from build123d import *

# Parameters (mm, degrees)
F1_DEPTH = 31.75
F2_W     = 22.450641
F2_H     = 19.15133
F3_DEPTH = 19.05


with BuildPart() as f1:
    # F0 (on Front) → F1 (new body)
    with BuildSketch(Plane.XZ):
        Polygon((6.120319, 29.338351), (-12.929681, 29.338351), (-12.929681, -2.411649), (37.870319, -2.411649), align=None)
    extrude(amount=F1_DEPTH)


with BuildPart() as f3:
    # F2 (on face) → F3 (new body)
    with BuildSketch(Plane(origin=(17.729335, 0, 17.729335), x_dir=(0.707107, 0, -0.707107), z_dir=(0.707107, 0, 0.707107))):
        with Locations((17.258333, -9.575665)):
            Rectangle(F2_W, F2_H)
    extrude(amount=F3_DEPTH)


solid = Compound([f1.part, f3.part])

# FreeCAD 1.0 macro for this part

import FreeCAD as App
import Part
import Sketcher

V = App.Vector
Q = App.Units.Quantity


def add_polygon(sketch, points):
    """Adds a closed chain of lines whose ends are joined by coincident constraints."""
    first, n = sketch.GeometryCount, len(points)
    for a, b in zip(points, points[1:] + points[:1]):
        sketch.addGeometry(Part.LineSegment(App.Vector(*a, 0), App.Vector(*b, 0)), False)
    for i in range(n):
        sketch.addConstraint(Sketcher.Constraint("Coincident", first + i, 2, first + (i + 1) % n, 1))

doc = App.newDocument("Part")
body = doc.addObject("PartDesign::Body", "Body")

sketch1 = body.newObject("Sketcher::SketchObject", "Sketch")
sketch1.AttachmentSupport = (doc.getObject("XZ_Plane"), [""])
sketch1.MapMode = "FlatFace"
add_polygon(sketch1, [(6.120319, 29.338351), (-12.929681, 29.338351), (-12.929681, -2.411649), (37.870319, -2.411649)])
sketch1.addConstraint([
    Sketcher.Constraint("Horizontal", 0),
    Sketcher.Constraint("Vertical", 1),
    Sketcher.Constraint("Horizontal", 2),
    Sketcher.Constraint("DistanceX", 2, 1, 2, 2, Q("2 in")),
    Sketcher.Constraint("Angle", 3, Q("135 deg")),
    Sketcher.Constraint("DistanceX", 0, 2, 0, 1, Q("0.75 in")),
    Sketcher.Constraint("DistanceX", 0, 2, -1, 1, Q("12.929681 mm")),
    Sketcher.Constraint("DistanceY", -1, 1, 0, 2, Q("29.338351 mm")),
])
pad1 = body.newObject("PartDesign::Pad", "Pad")
pad1.Profile = sketch1
pad1.Length = Q("1.25 in")
body2 = doc.addObject("PartDesign::Body", "Body001")

sketch2 = body2.newObject("Sketcher::SketchObject", "Sketch001")
sketch2.Placement = App.Placement(V(17.729335, 0, 17.729335), App.Rotation(V(0.707106781, 0, -0.707106781), V(0, 0.999999999, 0), V(0.707106781, 0, 0.707106781), "ZXY"))
add_polygon(sketch2, [(6.033012, 0), (6.033012, -19.15133), (28.483653, -19.15133), (28.483653, 0)])
sketch2.addConstraint([
    Sketcher.Constraint("Vertical", 0),
    Sketcher.Constraint("Horizontal", 1),
    Sketcher.Constraint("Vertical", 2),
    Sketcher.Constraint("Horizontal", 3),
    Sketcher.Constraint("PointOnObject", 2, 2, -1),
    Sketcher.Constraint("DistanceX", 1, 1, 1, 2, Q("22.450641 mm")),
    Sketcher.Constraint("DistanceY", 0, 2, 0, 1, Q("19.15133 mm")),
    Sketcher.Constraint("DistanceX", -1, 1, 0, 2, Q("6.033012 mm")),
])
pad2 = body2.newObject("PartDesign::Pad", "Pad001")
pad2.Profile = sketch2
pad2.Length = Q("0.75 in")

doc.recompute()
